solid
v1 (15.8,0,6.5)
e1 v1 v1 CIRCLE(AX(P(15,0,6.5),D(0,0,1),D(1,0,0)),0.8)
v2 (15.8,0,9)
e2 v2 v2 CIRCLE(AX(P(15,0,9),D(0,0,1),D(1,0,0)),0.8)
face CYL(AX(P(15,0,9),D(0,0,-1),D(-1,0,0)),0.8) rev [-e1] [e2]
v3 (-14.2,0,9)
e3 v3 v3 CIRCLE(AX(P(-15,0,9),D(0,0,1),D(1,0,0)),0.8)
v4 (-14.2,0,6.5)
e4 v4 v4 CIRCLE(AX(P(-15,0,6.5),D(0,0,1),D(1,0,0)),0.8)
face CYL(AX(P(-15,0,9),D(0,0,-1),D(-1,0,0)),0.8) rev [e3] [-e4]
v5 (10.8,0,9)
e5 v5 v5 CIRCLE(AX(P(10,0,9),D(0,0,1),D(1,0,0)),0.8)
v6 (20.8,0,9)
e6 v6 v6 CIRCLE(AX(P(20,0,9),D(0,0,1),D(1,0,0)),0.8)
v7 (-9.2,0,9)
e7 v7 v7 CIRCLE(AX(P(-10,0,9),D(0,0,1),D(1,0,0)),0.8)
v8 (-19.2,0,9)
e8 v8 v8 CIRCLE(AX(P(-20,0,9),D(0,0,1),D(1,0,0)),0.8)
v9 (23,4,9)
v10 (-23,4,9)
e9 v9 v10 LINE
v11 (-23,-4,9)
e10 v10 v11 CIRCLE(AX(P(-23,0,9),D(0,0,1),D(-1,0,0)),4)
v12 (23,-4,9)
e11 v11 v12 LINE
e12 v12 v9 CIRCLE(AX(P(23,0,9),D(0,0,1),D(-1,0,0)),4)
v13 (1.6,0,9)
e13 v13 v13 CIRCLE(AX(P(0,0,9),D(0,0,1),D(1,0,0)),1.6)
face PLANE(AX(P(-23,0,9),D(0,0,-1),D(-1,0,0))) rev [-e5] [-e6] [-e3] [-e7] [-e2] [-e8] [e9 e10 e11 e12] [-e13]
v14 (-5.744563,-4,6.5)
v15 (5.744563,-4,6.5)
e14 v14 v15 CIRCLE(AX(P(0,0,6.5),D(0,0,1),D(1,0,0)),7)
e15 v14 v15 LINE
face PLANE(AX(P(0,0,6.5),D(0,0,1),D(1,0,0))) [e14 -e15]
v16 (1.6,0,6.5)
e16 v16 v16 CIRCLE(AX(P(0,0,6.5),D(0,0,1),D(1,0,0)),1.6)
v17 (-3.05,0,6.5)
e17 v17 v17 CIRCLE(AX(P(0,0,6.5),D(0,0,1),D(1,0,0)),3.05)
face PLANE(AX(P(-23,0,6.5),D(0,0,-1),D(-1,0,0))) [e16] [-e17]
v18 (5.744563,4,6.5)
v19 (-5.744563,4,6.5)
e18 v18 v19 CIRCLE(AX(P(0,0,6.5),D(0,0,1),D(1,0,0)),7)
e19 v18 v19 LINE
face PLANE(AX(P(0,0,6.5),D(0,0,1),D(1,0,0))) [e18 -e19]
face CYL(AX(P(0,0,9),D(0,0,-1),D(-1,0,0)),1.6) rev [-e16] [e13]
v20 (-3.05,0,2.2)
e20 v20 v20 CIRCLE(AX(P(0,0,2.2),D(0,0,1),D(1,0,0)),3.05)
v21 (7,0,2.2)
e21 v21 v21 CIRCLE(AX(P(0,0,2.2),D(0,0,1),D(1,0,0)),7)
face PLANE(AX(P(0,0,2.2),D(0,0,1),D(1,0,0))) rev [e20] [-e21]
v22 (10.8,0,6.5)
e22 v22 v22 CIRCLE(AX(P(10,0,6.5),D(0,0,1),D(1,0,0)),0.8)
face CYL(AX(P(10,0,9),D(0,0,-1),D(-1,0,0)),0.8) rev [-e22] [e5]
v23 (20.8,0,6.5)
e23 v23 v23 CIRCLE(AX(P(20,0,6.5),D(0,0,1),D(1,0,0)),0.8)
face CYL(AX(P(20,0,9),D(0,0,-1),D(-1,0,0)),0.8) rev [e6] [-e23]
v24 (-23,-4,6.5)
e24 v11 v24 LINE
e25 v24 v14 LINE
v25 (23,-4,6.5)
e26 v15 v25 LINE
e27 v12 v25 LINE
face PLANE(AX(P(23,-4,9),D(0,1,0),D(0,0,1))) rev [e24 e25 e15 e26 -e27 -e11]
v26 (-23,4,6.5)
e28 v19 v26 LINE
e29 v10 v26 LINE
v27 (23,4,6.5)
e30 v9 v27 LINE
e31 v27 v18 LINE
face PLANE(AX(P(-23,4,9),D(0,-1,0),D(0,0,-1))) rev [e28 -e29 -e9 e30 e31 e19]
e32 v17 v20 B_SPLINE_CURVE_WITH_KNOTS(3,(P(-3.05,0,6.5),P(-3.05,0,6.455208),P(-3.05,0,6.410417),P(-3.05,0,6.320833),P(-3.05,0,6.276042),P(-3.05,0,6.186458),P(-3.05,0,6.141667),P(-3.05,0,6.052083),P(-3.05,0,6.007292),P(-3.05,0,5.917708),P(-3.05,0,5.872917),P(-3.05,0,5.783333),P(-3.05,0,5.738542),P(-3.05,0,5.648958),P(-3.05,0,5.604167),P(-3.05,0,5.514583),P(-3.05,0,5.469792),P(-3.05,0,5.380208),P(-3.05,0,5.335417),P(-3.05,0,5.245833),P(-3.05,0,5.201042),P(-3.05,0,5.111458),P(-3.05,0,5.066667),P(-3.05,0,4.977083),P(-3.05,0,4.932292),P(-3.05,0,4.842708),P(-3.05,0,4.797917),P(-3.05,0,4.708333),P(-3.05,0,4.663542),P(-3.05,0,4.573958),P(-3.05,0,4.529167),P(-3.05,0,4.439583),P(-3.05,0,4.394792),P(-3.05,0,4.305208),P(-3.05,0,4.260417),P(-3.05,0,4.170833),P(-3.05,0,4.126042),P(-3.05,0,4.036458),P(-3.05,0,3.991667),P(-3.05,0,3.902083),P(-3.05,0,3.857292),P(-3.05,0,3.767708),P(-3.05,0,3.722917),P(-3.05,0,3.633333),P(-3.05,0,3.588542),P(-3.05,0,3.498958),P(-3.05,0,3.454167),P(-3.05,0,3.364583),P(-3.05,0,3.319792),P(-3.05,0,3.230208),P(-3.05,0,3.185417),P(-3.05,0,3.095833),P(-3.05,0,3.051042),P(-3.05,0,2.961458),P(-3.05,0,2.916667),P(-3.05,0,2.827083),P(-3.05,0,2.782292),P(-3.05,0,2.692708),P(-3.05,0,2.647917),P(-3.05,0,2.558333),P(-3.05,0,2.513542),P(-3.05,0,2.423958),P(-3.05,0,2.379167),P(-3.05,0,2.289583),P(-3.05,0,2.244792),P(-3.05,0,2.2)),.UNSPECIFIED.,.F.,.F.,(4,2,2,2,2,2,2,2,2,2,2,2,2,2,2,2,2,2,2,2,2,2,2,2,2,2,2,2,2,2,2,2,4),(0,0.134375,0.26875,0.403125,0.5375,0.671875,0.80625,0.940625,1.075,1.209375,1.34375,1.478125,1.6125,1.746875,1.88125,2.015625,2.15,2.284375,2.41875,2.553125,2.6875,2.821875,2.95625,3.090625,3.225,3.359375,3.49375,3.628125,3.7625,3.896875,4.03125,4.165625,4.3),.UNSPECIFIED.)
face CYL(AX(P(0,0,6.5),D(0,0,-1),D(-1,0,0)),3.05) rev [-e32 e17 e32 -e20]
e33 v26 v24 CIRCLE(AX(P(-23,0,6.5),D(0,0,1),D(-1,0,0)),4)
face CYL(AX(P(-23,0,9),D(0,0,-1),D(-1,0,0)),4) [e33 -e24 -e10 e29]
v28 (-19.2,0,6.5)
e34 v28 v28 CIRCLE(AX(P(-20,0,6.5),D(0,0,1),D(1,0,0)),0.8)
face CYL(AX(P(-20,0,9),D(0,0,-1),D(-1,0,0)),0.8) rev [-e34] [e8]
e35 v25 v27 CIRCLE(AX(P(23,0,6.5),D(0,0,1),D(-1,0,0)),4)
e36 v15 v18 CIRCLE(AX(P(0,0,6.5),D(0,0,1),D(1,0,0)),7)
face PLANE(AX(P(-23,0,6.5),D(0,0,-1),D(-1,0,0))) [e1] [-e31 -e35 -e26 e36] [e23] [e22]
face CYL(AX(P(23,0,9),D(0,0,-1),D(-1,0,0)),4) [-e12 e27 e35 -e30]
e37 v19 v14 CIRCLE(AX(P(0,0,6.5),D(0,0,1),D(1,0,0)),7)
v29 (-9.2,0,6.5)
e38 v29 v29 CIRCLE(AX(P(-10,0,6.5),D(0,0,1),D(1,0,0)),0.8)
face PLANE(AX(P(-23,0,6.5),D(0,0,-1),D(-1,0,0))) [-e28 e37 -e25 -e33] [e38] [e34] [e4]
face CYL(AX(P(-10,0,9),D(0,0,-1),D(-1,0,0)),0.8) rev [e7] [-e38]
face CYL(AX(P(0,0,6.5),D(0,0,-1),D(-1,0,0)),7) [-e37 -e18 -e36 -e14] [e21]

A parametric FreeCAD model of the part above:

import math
import FreeCAD as App
import Part
import Sketcher

doc = App.newDocument("Part")
body = doc.addObject("PartDesign::Body", "Body")

# Sketch on XY plane
sketch1 = body.newObject("Sketcher::SketchObject", "Sketch")
sketch1.AttachmentSupport = (doc.getObject("XY_Plane"), [""])
sketch1.MapMode = "FlatFace"
sketch1.AttachmentOffset = App.Placement(App.Vector(0, 0, 2.2), App.Rotation())
sketch1.addGeometry([
    Part.Circle(App.Vector(0, 0, 0), App.Vector(0, 0, 1), 7),
    Part.Circle(App.Vector(0, 0, 0), App.Vector(0, 0, 1), 3.05),
], False)
sketch1.addConstraint([
    Sketcher.Constraint("Coincident", 0, 3, -1, 1),
    Sketcher.Constraint("Coincident", 1, 3, -1, 1),
    Sketcher.Constraint("Diameter", 0, 14.0),
    Sketcher.Constraint("Diameter", 1, 6.1),
])
pad1 = body.newObject("PartDesign::Pad", "Pad")
pad1.Profile = sketch1
pad1.Length = 4.3

# Sketch on XY plane
sketch2 = body.newObject("Sketcher::SketchObject", "Sketch001")
sketch2.AttachmentSupport = (doc.getObject("XY_Plane"), [""])
sketch2.MapMode = "FlatFace"
sketch2.AttachmentOffset = App.Placement(App.Vector(0, 0, 6.5), App.Rotation())
sketch2.addGeometry([
    Part.LineSegment(App.Vector(23, 4, 0), App.Vector(-23, 4, 0)),  # 0
    Part.ArcOfCircle(Part.Circle(App.Vector(-23, 0, 0), App.Vector(0, 0, 1), 4), math.radians(90), math.radians(270)),  # 1
    Part.LineSegment(App.Vector(-23, -4, 0), App.Vector(23, -4, 0)),  # 2
    Part.ArcOfCircle(Part.Circle(App.Vector(23, 0, 0), App.Vector(0, 0, 1), 4), math.radians(-90), math.radians(90)),  # 3
    Part.Circle(App.Vector(20, 0, 0), App.Vector(0, 0, 1), 0.8),  # 4
    Part.Circle(App.Vector(15, 0, 0), App.Vector(0, 0, 1), 0.8),  # 5
    Part.Circle(App.Vector(10, 0, 0), App.Vector(0, 0, 1), 0.8),  # 6
    Part.Circle(App.Vector(0, 0, 0), App.Vector(0, 0, 1), 1.6),  # 7
    Part.Circle(App.Vector(-10, 0, 0), App.Vector(0, 0, 1), 0.8),  # 8
    Part.Circle(App.Vector(-15, 0, 0), App.Vector(0, 0, 1), 0.8),  # 9
    Part.Circle(App.Vector(-20, 0, 0), App.Vector(0, 0, 1), 0.8),  # 10
], False)
sketch2.addConstraint([
    Sketcher.Constraint("Tangent", 0, 2, 1, 1),
    Sketcher.Constraint("Tangent", 1, 2, 2, 1),
    Sketcher.Constraint("Tangent", 2, 2, 3, 1),
    Sketcher.Constraint("Tangent", 3, 2, 0, 1),
    Sketcher.Constraint("Horizontal", 0),
    Sketcher.Constraint("Horizontal", 2),
    Sketcher.Constraint("Coincident", 7, 3, -1, 1),
    Sketcher.Constraint("Equal", 4, 5),
    Sketcher.Constraint("Equal", 5, 6),
    Sketcher.Constraint("Equal", 6, 8),
    Sketcher.Constraint("Equal", 8, 9),
    Sketcher.Constraint("Equal", 9, 10),
    Sketcher.Constraint("Symmetric", 1, 3, 3, 3, -1, 1),
    Sketcher.Constraint("Symmetric", 6, 3, 8, 3, -1, 1),
    Sketcher.Constraint("Symmetric", 5, 3, 9, 3, -1, 1),
    Sketcher.Constraint("Symmetric", 4, 3, 10, 3, -1, 1),
    Sketcher.Constraint("PointOnObject", 4, 3, -1),
    Sketcher.Constraint("PointOnObject", 5, 3, -1),
    Sketcher.Constraint("PointOnObject", 6, 3, -1),
    Sketcher.Constraint("Radius", 1, 4.0),
    Sketcher.Constraint("Diameter", 4, 1.6),
    Sketcher.Constraint("Diameter", 7, 3.2),
    Sketcher.Constraint("DistanceX", 0, 2, 0, 1, 46.0),
    Sketcher.Constraint("DistanceX", -1, 1, 4, 3, 20.0),
    Sketcher.Constraint("DistanceX", -1, 1, 5, 3, 15.0),
    Sketcher.Constraint("DistanceX", -1, 1, 6, 3, 10.0),
])
pad2 = body.newObject("PartDesign::Pad", "Pad001")
pad2.Profile = sketch2
pad2.Length = 2.5

doc.recompute()
